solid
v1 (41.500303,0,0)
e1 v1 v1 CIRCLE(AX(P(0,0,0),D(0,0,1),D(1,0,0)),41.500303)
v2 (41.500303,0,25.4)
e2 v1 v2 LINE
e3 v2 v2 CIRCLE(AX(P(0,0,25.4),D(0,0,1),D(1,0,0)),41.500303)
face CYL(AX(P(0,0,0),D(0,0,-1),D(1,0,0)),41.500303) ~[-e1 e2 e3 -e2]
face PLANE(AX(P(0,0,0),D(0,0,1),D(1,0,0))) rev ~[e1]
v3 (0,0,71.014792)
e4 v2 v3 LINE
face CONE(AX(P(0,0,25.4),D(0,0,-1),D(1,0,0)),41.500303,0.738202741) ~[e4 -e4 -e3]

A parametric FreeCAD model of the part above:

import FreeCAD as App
import Part
import Sketcher

V = App.Vector
Q = App.Units.Quantity


def add_polygon(sketch, points):
    """Adds a closed chain of lines whose ends are joined by coincident constraints."""
    first, n = sketch.GeometryCount, len(points)
    for a, b in zip(points, points[1:] + points[:1]):
        sketch.addGeometry(Part.LineSegment(App.Vector(*a, 0), App.Vector(*b, 0)), False)
    for i in range(n):
        sketch.addConstraint(Sketcher.Constraint("Coincident", first + i, 2, first + (i + 1) % n, 1))

doc = App.newDocument("Part")
body = doc.addObject("PartDesign::Body", "Body")

# Sketch on XY plane
sketch1 = body.newObject("Sketcher::SketchObject", "Sketch")
sketch1.AttachmentSupport = (doc.getObject("XY_Plane"), [""])
sketch1.MapMode = "FlatFace"
sketch1.addGeometry(Part.Circle(V(0, 0, 0), V(0, 0, 1), 42), False)
sketch1.addConstraint([
    Sketcher.Constraint("Coincident", 0, 3, -1, 1),
    Sketcher.Constraint("Diameter", 0, Q("83.000606 mm")),
])
pad1 = body.newObject("PartDesign::Pad", "Pad")
pad1.Profile = sketch1
pad1.Length = Q("1 in")

# Sketch on XZ plane
sketch2 = body.newObject("Sketcher::SketchObject", "Sketch001")
sketch2.AttachmentSupport = (doc.getObject("XZ_Plane"), [""])
sketch2.MapMode = "FlatFace"
add_polygon(sketch2, [(42, 25), (0, 71), (0, 25)])  # lines 0-2
sketch2.addConstraint([
    Sketcher.Constraint("Vertical", 1),
    Sketcher.Constraint("Horizontal", 2),
    Sketcher.Constraint("PointOnObject", 0, 2, -2),
    Sketcher.Constraint("DistanceY", -1, 1, 1, 2, Q("1 in")),
    Sketcher.Constraint("Distance", 0, Q("61.668342 mm")),
    Sketcher.Constraint("DistanceX", 2, 1, 2, 2, Q("41.500303 mm")),
])
revolution = body.newObject("PartDesign::Revolution", "Revolution")
revolution.Profile = sketch2
revolution.ReferenceAxis = (sketch2, ["V_Axis"])
revolution.Angle = 360

doc.recompute()
